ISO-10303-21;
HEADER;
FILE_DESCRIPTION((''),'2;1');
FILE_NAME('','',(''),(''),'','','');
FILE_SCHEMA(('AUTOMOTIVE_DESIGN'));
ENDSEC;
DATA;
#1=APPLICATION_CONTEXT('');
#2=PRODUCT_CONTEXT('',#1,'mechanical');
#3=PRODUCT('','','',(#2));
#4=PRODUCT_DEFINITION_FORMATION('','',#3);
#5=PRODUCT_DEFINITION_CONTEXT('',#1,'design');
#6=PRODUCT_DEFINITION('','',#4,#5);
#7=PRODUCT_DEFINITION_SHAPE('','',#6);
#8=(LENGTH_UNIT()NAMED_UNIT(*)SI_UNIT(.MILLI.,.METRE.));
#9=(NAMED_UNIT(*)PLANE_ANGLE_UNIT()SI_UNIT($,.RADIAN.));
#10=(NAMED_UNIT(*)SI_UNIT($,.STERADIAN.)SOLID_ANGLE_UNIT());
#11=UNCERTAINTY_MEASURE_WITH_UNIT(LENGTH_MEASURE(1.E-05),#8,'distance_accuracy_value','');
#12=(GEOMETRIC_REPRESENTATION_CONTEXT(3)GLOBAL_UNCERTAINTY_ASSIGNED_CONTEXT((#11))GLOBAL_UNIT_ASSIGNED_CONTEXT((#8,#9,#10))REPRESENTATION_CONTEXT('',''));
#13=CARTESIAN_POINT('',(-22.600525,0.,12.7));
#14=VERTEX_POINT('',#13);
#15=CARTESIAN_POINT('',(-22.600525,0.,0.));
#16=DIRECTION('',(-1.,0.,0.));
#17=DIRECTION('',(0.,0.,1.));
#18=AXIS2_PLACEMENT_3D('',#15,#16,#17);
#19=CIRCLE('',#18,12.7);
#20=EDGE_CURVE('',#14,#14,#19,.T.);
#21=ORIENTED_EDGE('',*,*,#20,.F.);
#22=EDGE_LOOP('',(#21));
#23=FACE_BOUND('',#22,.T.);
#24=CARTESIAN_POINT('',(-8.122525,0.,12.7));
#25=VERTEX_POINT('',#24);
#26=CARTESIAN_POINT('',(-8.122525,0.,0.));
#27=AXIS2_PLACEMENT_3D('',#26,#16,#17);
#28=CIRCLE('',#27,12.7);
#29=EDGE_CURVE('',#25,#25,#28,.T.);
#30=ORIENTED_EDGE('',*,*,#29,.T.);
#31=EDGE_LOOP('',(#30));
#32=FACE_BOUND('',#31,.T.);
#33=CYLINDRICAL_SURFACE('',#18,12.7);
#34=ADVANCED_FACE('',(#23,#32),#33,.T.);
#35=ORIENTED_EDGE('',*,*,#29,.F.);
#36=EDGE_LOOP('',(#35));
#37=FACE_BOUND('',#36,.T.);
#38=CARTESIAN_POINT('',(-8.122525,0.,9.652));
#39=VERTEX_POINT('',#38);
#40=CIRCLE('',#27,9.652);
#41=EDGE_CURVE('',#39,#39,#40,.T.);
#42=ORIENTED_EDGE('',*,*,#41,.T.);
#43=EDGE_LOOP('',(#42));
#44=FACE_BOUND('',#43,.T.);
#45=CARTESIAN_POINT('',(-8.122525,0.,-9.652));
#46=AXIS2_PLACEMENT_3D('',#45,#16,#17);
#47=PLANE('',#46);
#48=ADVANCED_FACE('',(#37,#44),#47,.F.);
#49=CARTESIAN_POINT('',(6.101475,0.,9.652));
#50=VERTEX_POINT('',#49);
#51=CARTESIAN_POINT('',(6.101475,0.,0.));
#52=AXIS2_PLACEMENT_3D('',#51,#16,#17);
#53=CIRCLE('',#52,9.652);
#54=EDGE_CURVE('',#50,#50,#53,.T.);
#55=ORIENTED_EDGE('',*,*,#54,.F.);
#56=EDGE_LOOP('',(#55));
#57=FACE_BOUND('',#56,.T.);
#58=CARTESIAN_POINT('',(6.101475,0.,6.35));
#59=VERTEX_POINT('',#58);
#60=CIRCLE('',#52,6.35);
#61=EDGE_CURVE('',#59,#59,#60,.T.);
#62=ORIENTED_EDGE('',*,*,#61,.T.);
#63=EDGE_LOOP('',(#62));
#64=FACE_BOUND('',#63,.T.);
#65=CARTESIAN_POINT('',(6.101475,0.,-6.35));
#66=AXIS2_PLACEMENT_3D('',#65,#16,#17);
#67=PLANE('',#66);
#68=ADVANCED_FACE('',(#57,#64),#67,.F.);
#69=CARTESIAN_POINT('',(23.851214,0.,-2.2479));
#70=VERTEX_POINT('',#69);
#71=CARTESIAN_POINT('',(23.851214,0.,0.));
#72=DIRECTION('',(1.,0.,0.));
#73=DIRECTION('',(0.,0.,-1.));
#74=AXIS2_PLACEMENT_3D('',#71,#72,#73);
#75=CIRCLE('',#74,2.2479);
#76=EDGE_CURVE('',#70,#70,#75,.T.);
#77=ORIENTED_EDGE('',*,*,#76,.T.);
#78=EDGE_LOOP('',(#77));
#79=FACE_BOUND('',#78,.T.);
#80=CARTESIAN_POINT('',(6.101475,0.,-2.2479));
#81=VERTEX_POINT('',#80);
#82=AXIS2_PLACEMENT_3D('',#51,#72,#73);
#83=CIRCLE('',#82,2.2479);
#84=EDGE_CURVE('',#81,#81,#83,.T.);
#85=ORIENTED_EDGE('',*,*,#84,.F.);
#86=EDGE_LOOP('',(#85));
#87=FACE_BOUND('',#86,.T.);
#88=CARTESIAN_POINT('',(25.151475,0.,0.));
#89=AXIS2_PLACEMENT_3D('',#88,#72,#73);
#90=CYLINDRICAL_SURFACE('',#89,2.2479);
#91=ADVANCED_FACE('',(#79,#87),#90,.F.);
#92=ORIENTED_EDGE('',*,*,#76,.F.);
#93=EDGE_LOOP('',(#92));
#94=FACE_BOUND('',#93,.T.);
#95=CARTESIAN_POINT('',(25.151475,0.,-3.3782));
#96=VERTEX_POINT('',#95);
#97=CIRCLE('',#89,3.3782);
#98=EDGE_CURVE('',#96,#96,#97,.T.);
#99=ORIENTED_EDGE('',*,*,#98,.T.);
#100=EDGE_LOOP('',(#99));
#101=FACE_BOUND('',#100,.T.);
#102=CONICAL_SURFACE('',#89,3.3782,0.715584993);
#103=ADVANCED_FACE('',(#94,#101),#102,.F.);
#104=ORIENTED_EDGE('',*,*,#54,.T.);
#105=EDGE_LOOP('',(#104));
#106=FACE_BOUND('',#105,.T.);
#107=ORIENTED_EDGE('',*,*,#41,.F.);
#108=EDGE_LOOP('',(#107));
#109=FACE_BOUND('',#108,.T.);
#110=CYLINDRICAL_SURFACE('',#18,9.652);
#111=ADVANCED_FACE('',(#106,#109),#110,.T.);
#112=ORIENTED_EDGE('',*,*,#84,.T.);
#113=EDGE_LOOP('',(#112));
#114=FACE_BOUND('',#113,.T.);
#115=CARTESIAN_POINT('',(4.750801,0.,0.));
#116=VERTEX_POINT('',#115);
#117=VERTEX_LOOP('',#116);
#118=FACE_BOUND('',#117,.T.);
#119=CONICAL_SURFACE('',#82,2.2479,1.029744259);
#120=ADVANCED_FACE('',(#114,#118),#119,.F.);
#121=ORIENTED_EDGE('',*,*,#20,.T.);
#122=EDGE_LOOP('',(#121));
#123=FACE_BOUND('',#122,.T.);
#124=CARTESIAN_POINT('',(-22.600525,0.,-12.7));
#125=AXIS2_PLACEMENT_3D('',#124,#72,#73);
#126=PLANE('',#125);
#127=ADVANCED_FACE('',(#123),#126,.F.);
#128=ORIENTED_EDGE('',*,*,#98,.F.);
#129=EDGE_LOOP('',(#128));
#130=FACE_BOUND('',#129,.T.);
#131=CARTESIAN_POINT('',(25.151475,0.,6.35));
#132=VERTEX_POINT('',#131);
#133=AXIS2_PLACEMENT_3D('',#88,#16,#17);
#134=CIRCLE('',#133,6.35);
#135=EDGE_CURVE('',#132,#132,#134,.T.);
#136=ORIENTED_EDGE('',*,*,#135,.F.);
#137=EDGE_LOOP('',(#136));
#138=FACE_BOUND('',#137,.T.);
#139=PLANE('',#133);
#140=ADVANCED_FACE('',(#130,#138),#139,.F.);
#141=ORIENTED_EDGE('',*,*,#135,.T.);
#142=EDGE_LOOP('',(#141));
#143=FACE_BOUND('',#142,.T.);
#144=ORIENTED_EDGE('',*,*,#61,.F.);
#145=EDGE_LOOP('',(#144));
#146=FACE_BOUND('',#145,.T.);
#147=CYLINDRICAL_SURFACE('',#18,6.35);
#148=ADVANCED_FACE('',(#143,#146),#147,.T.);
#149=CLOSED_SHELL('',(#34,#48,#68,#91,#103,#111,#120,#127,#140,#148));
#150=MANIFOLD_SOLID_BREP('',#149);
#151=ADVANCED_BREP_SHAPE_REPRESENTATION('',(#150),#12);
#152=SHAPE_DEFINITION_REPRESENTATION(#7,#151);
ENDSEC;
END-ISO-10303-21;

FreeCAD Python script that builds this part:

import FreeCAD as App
import Part
import Sketcher
Q = App.Units.Quantity

doc = App.newDocument("Part")
body = doc.addObject("PartDesign::Body", "Body")

# Sketch on XZ plane
sketch1 = body.newObject("Sketcher::SketchObject", "Sketch")
sketch1.AttachmentSupport = (doc.getObject("XZ_Plane"), [""])
sketch1.MapMode = "FlatFace"
sketch1.addGeometry(Part.LineSegment(App.Vector(-22.6, 0, 0), App.Vector(25.2, 0, 0)), False)
sketch1.addGeometry(Part.LineSegment(App.Vector(25.2, 0, 0), App.Vector(25.2, -6.3, 0)), False)
sketch1.addGeometry(Part.LineSegment(App.Vector(25.2, -6.3, 0), App.Vector(6.1, -6.3, 0)), False)
sketch1.addGeometry(Part.LineSegment(App.Vector(6.1, -6.3, 0), App.Vector(6.1, -9.7, 0)), False)
sketch1.addGeometry(Part.LineSegment(App.Vector(6.1, -9.7, 0), App.Vector(-8.1, -9.7, 0)), False)
sketch1.addGeometry(Part.LineSegment(App.Vector(-8.1, -9.7, 0), App.Vector(-8.1, -12.7, 0)), False)
sketch1.addGeometry(Part.LineSegment(App.Vector(-8.1, -12.7, 0), App.Vector(-22.6, -12.7, 0)), False)
sketch1.addGeometry(Part.LineSegment(App.Vector(-22.6, -12.7, 0), App.Vector(-22.6, 0, 0)), False)
sketch1.addConstraint(Sketcher.Constraint("Coincident", 0, 2, 1, 1))
sketch1.addConstraint(Sketcher.Constraint("Coincident", 1, 2, 2, 1))
sketch1.addConstraint(Sketcher.Constraint("Coincident", 2, 2, 3, 1))
sketch1.addConstraint(Sketcher.Constraint("Coincident", 3, 2, 4, 1))
sketch1.addConstraint(Sketcher.Constraint("Coincident", 4, 2, 5, 1))
sketch1.addConstraint(Sketcher.Constraint("Coincident", 5, 2, 6, 1))
sketch1.addConstraint(Sketcher.Constraint("Coincident", 6, 2, 7, 1))
sketch1.addConstraint(Sketcher.Constraint("Coincident", 7, 2, 0, 1))
sketch1.addConstraint(Sketcher.Constraint("Horizontal", 0))
sketch1.addConstraint(Sketcher.Constraint("Vertical", 1))
sketch1.addConstraint(Sketcher.Constraint("Horizontal", 2))
sketch1.addConstraint(Sketcher.Constraint("Vertical", 3))
sketch1.addConstraint(Sketcher.Constraint("Horizontal", 4))
sketch1.addConstraint(Sketcher.Constraint("Vertical", 5))
sketch1.addConstraint(Sketcher.Constraint("Horizontal", 6))
sketch1.addConstraint(Sketcher.Constraint("Vertical", 7))
sketch1.addConstraint(Sketcher.Constraint("PointOnObject", 0, 2, -1))
sketch1.addConstraint(Sketcher.Constraint("DistanceY", 7, 1, 7, 2, Q("0.5 in")))
sketch1.addConstraint(Sketcher.Constraint("DistanceX", 0, 1, 0, 2, Q("1.88 in")))
sketch1.addConstraint(Sketcher.Constraint("DistanceX", 2, 2, 2, 1, Q("0.75 in")))
sketch1.addConstraint(Sketcher.Constraint("DistanceX", 4, 2, 4, 1, Q("0.56 in")))
sketch1.addConstraint(Sketcher.Constraint("DistanceY", 1, 2, 1, 1, Q("0.25 in")))
sketch1.addConstraint(Sketcher.Constraint("DistanceY", 3, 2, 3, 1, Q("0.13 in")))
sketch1.addConstraint(Sketcher.Constraint("DistanceX", -1, 1, 0, 2, Q("25.151475 mm")))
revolution = body.newObject("PartDesign::Revolution", "Revolution")
revolution.Profile = sketch1
revolution.ReferenceAxis = (sketch1, ["H_Axis"])
revolution.Angle = 360

# Sketch on YZ plane
sketch2 = body.newObject("Sketcher::SketchObject", "Sketch001")
sketch2.AttachmentSupport = (doc.getObject("YZ_Plane"), [""])
sketch2.MapMode = "FlatFace"
sketch2.AttachmentOffset = App.Placement(App.Vector(0, 0, 25.151475), App.Rotation())
sketch2.addGeometry(Part.Circle(App.Vector(0, 0, 0), App.Vector(0, 0, 1), 2.2), False)
sketch2.addConstraint(Sketcher.Constraint("Coincident", 0, 3, -1, 1))
sketch2.addConstraint(Sketcher.Constraint("Diameter", 0, Q("0.177 in")))
doc.recompute()
hole = body.newObject("PartDesign::Hole", "Hole")
hole.Profile = sketch2
hole.ThreadType = "None"
hole.Diameter = Q("0.177 in")
hole.DepthType = "Dimension"
hole.Depth = Q("0.75 in")
hole.DrillPoint = "Angled"
hole.DrillPointAngle = 118
hole.HoleCutType = "Countersink"
hole.HoleCutDiameter = Q("0.266 in")
hole.HoleCutCountersinkAngle = 82

doc.recompute()
